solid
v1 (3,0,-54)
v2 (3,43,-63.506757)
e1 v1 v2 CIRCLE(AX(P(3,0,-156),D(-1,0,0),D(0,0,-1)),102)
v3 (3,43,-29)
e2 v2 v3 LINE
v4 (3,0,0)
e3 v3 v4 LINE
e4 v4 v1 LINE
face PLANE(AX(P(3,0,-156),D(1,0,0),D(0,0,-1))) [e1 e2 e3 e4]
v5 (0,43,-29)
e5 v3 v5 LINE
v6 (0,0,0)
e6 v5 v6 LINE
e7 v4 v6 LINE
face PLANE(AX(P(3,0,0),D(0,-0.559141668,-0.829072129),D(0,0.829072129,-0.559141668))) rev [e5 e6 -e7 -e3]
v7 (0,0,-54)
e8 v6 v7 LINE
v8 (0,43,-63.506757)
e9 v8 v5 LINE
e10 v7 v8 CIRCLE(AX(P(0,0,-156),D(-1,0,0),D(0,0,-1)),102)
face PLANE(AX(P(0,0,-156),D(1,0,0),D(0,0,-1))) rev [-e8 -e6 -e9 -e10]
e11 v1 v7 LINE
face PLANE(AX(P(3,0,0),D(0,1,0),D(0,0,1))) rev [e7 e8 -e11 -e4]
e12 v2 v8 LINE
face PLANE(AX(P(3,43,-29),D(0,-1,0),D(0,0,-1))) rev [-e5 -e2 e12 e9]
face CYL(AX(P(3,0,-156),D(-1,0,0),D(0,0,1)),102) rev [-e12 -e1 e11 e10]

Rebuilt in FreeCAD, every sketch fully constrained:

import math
import FreeCAD as App
import Part
import Sketcher

doc = App.newDocument("Part")
body = doc.addObject("PartDesign::Body", "Body")

sketch1 = doc.addObject("Sketcher::SketchObject", "Sketch")
body.addObject(sketch1)
sketch1.AttachmentSupport = (doc.YZ_Plane, [""])
sketch1.MapMode = "FlatFace"
sketch1.addGeometry([
    Part.LineSegment(App.Vector(0, 0, 0), App.Vector(0, -54, 0)),
    Part.ArcOfCircle(Part.Circle(App.Vector(0, -156, 0), App.Vector(0, 0, 1), 102), math.radians(65), math.radians(90)),
    Part.LineSegment(App.Vector(43, -64, 0), App.Vector(43, -29, 0)),
    Part.LineSegment(App.Vector(43, -29, 0), App.Vector(0, 0, 0)),
], False)
sketch1.addConstraint([
    Sketcher.Constraint("Coincident", 0, 2, 1, 2),
    Sketcher.Constraint("Coincident", 1, 1, 2, 1),
    Sketcher.Constraint("Coincident", 2, 2, 3, 1),
    Sketcher.Constraint("Coincident", 3, 2, 0, 1),
    Sketcher.Constraint("Vertical", 0),
    Sketcher.Constraint("Vertical", 2),
    Sketcher.Constraint("Coincident", 3, 2, -1, 1),
    Sketcher.Constraint("PointOnObject", 1, 3, -2),
    Sketcher.Constraint("Radius", 1, 102.0),
    Sketcher.Constraint("DistanceY", 0, 2, 0, 1, 54.0),
    Sketcher.Constraint("DistanceX", -1, 1, 1, 1, 43.0),
    Sketcher.Constraint("DistanceY", 2, 2, -1, 1, 29.0),
])
pad1 = doc.addObject("PartDesign::Pad", "Pad")
body.addObject(pad1)
pad1.Profile = sketch1
pad1.Length = 3

doc.recompute()
